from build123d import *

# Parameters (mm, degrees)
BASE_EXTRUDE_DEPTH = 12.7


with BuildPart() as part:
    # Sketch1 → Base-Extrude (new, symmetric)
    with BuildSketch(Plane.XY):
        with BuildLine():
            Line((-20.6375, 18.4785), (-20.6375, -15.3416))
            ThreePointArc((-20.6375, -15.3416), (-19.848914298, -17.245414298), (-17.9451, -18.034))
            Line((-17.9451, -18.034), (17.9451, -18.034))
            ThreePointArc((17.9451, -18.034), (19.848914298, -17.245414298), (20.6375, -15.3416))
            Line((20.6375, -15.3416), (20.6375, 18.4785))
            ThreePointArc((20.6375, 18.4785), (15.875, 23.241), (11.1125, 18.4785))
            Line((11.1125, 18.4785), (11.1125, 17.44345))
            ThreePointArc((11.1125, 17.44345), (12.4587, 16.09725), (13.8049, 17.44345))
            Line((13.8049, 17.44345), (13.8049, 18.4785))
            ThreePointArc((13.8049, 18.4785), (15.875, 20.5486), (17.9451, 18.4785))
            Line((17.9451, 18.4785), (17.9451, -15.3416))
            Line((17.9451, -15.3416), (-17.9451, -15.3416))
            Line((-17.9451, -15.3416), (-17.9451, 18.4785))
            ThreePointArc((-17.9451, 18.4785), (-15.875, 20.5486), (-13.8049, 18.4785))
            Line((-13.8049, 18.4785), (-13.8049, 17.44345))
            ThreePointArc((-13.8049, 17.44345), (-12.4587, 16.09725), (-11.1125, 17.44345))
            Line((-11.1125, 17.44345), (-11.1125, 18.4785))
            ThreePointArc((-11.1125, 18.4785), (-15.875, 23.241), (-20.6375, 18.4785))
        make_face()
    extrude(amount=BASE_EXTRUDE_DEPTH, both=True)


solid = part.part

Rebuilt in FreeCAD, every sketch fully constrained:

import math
import FreeCAD as App
import Part
import Sketcher
from FreeCAD import Vector
Q = App.Units.Quantity

doc = App.newDocument("Part")
params = doc.addObject("Spreadsheet::Sheet", "Params")
for row, (alias, value) in enumerate([
    ("sketch1_radius", "0.106 in"),
    ("sketch1_radius2", "0.1875 in"),
    ("sketch1_width", "1.413 in"),
    ("pad1_length", "1 in"),
], start=1):
    params.set(f"A{row}", alias)
    params.set(f"B{row}", "=" + value)
    params.setAlias(f"B{row}", alias)

body = doc.addObject("PartDesign::Body", "Body")

# Sketch on XY plane
sketch1 = body.newObject("Sketcher::SketchObject", "Sketch")
sketch1.AttachmentSupport = (doc.getObject("XY_Plane"), [""])
sketch1.MapMode = "FlatFace"
sketch1.addGeometry(Part.LineSegment(Vector(-20.6, 18.5, 0), Vector(-20.6, -15.3, 0)), False)
sketch1.addGeometry(Part.ArcOfCircle(Part.Circle(Vector(-17.9, -15.3, 0), Vector(0, 0, 1), 2.7), math.radians(180), math.radians(270)), False)
sketch1.addGeometry(Part.LineSegment(Vector(-17.9, -18, 0), Vector(17.9, -18, 0)), False)
sketch1.addGeometry(Part.ArcOfCircle(Part.Circle(Vector(17.9, -15.3, 0), Vector(0, 0, 1), 2.7), math.radians(-90), math.radians(0)), False)
sketch1.addGeometry(Part.LineSegment(Vector(20.6, -15.3, 0), Vector(20.6, 18.5, 0)), False)
sketch1.addGeometry(Part.ArcOfCircle(Part.Circle(Vector(15.9, 18.5, 0), Vector(0, 0, 1), 4.8), math.radians(0), math.radians(180)), False)
sketch1.addGeometry(Part.LineSegment(Vector(11.1, 18.5, 0), Vector(11.1, 17.4, 0)), False)
sketch1.addGeometry(Part.ArcOfCircle(Part.Circle(Vector(12.5, 17.4, 0), Vector(0, 0, 1), 1.3), math.radians(180), math.radians(360)), False)
sketch1.addGeometry(Part.LineSegment(Vector(13.8, 17.4, 0), Vector(13.8, 18.5, 0)), False)
sketch1.addGeometry(Part.ArcOfCircle(Part.Circle(Vector(15.9, 18.5, 0), Vector(0, 0, 1), 2.1), math.radians(0), math.radians(180)), False)
sketch1.addGeometry(Part.LineSegment(Vector(17.9, 18.5, 0), Vector(17.9, -15.3, 0)), False)
sketch1.addGeometry(Part.LineSegment(Vector(17.9, -15.3, 0), Vector(-17.9, -15.3, 0)), False)
sketch1.addGeometry(Part.LineSegment(Vector(-17.9, -15.3, 0), Vector(-17.9, 18.5, 0)), False)
sketch1.addGeometry(Part.ArcOfCircle(Part.Circle(Vector(-15.9, 18.5, 0), Vector(0, 0, 1), 2.1), math.radians(0), math.radians(180)), False)
sketch1.addGeometry(Part.LineSegment(Vector(-13.8, 18.5, 0), Vector(-13.8, 17.4, 0)), False)
sketch1.addGeometry(Part.ArcOfCircle(Part.Circle(Vector(-12.5, 17.4, 0), Vector(0, 0, 1), 1.3), math.radians(180), math.radians(360)), False)
sketch1.addGeometry(Part.LineSegment(Vector(-11.1, 17.4, 0), Vector(-11.1, 18.5, 0)), False)
sketch1.addGeometry(Part.ArcOfCircle(Part.Circle(Vector(-15.9, 18.5, 0), Vector(0, 0, 1), 4.8), math.radians(0), math.radians(180)), False)
sketch1.addConstraint(Sketcher.Constraint("Tangent", 0, 2, 1, 1))
sketch1.addConstraint(Sketcher.Constraint("Tangent", 1, 2, 2, 1))
sketch1.addConstraint(Sketcher.Constraint("Tangent", 2, 2, 3, 1))
sketch1.addConstraint(Sketcher.Constraint("Tangent", 3, 2, 4, 1))
sketch1.addConstraint(Sketcher.Constraint("Tangent", 4, 2, 5, 1))
sketch1.addConstraint(Sketcher.Constraint("Tangent", 5, 2, 6, 1))
sketch1.addConstraint(Sketcher.Constraint("Tangent", 6, 2, 7, 1))
sketch1.addConstraint(Sketcher.Constraint("Tangent", 7, 2, 8, 1))
sketch1.addConstraint(Sketcher.Constraint("Tangent", 8, 2, 9, 2))
sketch1.addConstraint(Sketcher.Constraint("Tangent", 9, 1, 10, 1))
sketch1.addConstraint(Sketcher.Constraint("Coincident", 10, 2, 11, 1))
sketch1.addConstraint(Sketcher.Constraint("Coincident", 11, 2, 12, 1))
sketch1.addConstraint(Sketcher.Constraint("Tangent", 12, 2, 13, 2))
sketch1.addConstraint(Sketcher.Constraint("Tangent", 13, 1, 14, 1))
sketch1.addConstraint(Sketcher.Constraint("Tangent", 14, 2, 15, 1))
sketch1.addConstraint(Sketcher.Constraint("Tangent", 15, 2, 16, 1))
sketch1.addConstraint(Sketcher.Constraint("Tangent", 16, 2, 17, 1))
sketch1.addConstraint(Sketcher.Constraint("Tangent", 17, 2, 0, 1))
sketch1.addConstraint(Sketcher.Constraint("Vertical", 0))
sketch1.addConstraint(Sketcher.Constraint("Horizontal", 2))
sketch1.addConstraint(Sketcher.Constraint("Vertical", 4))
sketch1.addConstraint(Sketcher.Constraint("Vertical", 6))
sketch1.addConstraint(Sketcher.Constraint("Vertical", 8))
sketch1.addConstraint(Sketcher.Constraint("Vertical", 10))
sketch1.addConstraint(Sketcher.Constraint("Horizontal", 11))
sketch1.addConstraint(Sketcher.Constraint("Vertical", 12))
sketch1.addConstraint(Sketcher.Constraint("Vertical", 14))
sketch1.addConstraint(Sketcher.Constraint("Vertical", 16))
sketch1.addConstraint(Sketcher.Constraint("Coincident", 9, 3, 5, 3))
sketch1.addConstraint(Sketcher.Constraint("Coincident", 17, 3, 13, 3))
sketch1.addConstraint(Sketcher.Constraint("Coincident", 10, 2, 3, 3))
sketch1.addConstraint(Sketcher.Constraint("Coincident", 11, 2, 1, 3))
sketch1.addConstraint(Sketcher.Constraint("Equal", 9, 13))
sketch1.addConstraint(Sketcher.Constraint("Symmetric", 5, 3, 13, 3, -2))
sketch1.addConstraint(Sketcher.Constraint("Horizontal", 7, 3, 15, 3))
sketch1.addConstraint(Sketcher.Constraint("Radius", 1, Q("0.106 in")))
sketch1.addConstraint(Sketcher.Constraint("Radius", 5, Q("0.1875 in")))
sketch1.addConstraint(Sketcher.Constraint("DistanceX", 2, 1, 2, 2, Q("1.413 in")))
sketch1.addConstraint(Sketcher.Constraint("DistanceY", 1, 2, -1, 1, Q("0.71 in")))
sketch1.addConstraint(Sketcher.Constraint("DistanceY", 0, 2, 0, 1, Q("1.3315 in")))
sketch1.addConstraint(Sketcher.Constraint("DistanceY", 6, 2, 6, 1, Q("1.03505 mm")))
sketch1.setExpression("Constraints[35]", "Params.sketch1_radius")
sketch1.setExpression("Constraints[36]", "Params.sketch1_radius2")
sketch1.setExpression("Constraints[37]", "Params.sketch1_width")
pad1 = body.newObject("PartDesign::Pad", "Pad")
pad1.Profile = sketch1
pad1.setExpression("Length", "Params.pad1_length")
pad1.Midplane = True

doc.recompute()
